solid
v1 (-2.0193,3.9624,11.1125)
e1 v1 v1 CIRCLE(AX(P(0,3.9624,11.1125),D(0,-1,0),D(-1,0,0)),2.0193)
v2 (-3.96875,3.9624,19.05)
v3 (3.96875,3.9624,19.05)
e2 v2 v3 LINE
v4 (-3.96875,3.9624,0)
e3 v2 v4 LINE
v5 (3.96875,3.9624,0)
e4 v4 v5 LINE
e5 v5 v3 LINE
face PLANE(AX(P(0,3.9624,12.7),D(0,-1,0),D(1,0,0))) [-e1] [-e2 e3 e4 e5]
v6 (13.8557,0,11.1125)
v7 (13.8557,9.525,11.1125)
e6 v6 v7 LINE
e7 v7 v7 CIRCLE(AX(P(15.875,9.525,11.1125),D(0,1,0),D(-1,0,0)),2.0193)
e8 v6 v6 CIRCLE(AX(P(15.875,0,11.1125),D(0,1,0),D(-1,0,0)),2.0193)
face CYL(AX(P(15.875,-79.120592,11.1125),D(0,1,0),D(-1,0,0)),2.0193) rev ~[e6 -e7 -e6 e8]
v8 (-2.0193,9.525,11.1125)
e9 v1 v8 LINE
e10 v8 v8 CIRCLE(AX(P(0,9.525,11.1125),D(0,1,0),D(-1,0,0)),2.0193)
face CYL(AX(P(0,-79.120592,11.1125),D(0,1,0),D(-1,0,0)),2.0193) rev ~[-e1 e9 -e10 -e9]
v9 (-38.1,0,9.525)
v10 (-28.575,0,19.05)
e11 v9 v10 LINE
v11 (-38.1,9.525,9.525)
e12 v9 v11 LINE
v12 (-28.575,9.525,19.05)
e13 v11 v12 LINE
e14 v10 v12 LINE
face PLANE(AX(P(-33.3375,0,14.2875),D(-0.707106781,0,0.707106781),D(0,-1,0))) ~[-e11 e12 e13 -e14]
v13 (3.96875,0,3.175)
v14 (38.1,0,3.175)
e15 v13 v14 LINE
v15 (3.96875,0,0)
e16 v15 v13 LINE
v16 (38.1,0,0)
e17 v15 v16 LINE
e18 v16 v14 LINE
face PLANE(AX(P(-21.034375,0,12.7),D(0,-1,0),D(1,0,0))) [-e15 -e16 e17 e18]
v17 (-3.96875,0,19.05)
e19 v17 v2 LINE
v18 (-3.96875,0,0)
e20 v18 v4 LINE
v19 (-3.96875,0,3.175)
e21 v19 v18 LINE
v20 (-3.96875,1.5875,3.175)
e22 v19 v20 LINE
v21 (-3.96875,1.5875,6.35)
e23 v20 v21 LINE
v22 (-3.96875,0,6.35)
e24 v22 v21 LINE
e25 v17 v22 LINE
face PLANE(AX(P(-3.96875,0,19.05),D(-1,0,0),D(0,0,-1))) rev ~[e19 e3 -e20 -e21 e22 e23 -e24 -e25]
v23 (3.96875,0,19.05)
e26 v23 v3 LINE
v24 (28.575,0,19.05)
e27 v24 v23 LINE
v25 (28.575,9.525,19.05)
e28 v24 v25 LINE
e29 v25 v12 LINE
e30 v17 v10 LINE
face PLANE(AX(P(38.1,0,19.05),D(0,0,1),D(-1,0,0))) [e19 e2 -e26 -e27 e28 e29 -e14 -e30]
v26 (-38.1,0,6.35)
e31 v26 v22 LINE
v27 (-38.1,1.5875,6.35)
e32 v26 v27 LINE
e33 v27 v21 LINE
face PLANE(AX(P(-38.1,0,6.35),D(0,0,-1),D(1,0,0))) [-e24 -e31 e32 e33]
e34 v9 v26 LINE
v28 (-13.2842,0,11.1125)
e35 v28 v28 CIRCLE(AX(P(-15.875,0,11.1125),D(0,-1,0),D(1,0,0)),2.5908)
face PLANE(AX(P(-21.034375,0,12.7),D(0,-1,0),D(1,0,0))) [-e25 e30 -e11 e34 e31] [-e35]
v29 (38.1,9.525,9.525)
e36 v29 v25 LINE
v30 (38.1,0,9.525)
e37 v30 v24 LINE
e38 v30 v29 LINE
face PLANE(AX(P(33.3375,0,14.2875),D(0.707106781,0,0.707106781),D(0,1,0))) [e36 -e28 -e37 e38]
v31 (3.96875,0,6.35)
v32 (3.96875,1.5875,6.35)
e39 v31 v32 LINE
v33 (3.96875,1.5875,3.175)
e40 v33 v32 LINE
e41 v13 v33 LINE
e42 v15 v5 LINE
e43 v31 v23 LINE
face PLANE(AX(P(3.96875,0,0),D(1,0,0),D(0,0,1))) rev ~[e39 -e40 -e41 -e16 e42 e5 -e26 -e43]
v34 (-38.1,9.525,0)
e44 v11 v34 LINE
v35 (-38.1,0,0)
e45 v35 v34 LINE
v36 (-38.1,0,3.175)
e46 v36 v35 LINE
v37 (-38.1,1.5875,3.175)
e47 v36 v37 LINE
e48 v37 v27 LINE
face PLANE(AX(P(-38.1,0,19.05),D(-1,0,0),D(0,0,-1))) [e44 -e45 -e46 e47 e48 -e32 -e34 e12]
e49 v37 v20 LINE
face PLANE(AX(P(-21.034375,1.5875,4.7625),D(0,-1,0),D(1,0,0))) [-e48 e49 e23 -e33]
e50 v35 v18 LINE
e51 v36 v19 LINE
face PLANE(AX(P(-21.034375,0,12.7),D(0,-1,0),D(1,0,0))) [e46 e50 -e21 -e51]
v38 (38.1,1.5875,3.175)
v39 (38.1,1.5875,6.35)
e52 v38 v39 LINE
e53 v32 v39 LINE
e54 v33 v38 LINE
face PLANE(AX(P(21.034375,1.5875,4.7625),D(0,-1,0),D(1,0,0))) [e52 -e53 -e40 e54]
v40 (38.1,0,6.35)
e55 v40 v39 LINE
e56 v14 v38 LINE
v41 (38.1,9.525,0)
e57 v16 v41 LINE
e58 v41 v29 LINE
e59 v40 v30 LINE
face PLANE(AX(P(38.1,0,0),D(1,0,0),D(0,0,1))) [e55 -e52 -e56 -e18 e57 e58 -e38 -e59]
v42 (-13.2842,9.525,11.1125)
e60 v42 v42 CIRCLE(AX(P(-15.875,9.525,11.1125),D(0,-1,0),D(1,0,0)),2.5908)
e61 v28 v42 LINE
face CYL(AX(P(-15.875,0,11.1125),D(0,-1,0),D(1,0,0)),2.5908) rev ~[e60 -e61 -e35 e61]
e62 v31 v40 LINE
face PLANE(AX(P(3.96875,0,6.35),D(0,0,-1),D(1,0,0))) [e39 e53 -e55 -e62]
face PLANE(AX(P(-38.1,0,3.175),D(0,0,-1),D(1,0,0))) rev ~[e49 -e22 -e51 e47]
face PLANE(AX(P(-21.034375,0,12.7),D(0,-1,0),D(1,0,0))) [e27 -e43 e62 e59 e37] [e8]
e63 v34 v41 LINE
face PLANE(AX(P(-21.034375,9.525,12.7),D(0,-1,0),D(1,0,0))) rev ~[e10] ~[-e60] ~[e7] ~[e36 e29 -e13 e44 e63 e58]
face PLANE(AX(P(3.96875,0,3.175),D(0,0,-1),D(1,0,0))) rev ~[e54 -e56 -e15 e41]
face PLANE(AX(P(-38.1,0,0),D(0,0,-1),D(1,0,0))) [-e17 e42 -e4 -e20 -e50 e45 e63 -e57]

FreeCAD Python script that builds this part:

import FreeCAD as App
import Part
import Sketcher
from FreeCAD import Vector
Q = App.Units.Quantity


def edges_at(feature, points):
    """Names of the edges that pass closest to the given points."""
    edges = feature.Shape.Edges
    near = lambda p: min(range(len(edges)), key=lambda i: edges[i].distToShape(Part.Vertex(*p))[0])
    return sorted({f"Edge{near(p) + 1}" for p in points})


def add_polygon(sketch, points):
    """Adds a closed chain of lines whose ends are joined by coincident constraints."""
    first, n = sketch.GeometryCount, len(points)
    for a, b in zip(points, points[1:] + points[:1]):
        sketch.addGeometry(Part.LineSegment(App.Vector(*a, 0), App.Vector(*b, 0)), False)
    for i in range(n):
        sketch.addConstraint(Sketcher.Constraint("Coincident", first + i, 2, first + (i + 1) % n, 1))

doc = App.newDocument("Part")
body = doc.addObject("PartDesign::Body", "Body")

sketch1 = body.newObject("Sketcher::SketchObject", "Sketch")
sketch1.AttachmentSupport = (doc.getObject("XZ_Plane"), [""])
sketch1.MapMode = "FlatFace"
add_polygon(sketch1, [(-38.1, 0), (38.1, 0), (38.1, 19.1), (-38.1, 19.1)])
sketch1.addGeometry(Part.Circle(Vector(-15.9, 11.1, 0), Vector(0, 0, 1), 2.6), False)
sketch1.addConstraint(Sketcher.Constraint("Horizontal", 0))
sketch1.addConstraint(Sketcher.Constraint("Vertical", 1))
sketch1.addConstraint(Sketcher.Constraint("Horizontal", 2))
sketch1.addConstraint(Sketcher.Constraint("Vertical", 3))
sketch1.addConstraint(Sketcher.Constraint("Symmetric", 0, 2, 3, 2, -1, 1))
sketch1.addConstraint(Sketcher.Constraint("DistanceX", 0, 1, 0, 2, Q("3 in")))
sketch1.addConstraint(Sketcher.Constraint("Diameter", 4, Q("0.204 in")))
sketch1.addConstraint(Sketcher.Constraint("DistanceY", 1, 1, 1, 2, Q("0.75 in")))
sketch1.addConstraint(Sketcher.Constraint("DistanceX", 4, 3, -1, 1, Q("0.625 in")))
sketch1.addConstraint(Sketcher.Constraint("DistanceY", -1, 1, 4, 3, Q("0.4375 in")))
pad1 = body.newObject("PartDesign::Pad", "Pad")
pad1.Profile = sketch1
pad1.Length = Q("0.375 in")
pad1.Reversed = True

sketch2 = body.newObject("Sketcher::SketchObject", "Sketch001")
sketch2.AttachmentSupport = (doc.getObject("XZ_Plane"), [""])
sketch2.MapMode = "FlatFace"
add_polygon(sketch2, [(-4, 19.1), (-4, 0), (4, 0), (4, 19.1)])
sketch2.addGeometry(Part.Circle(Vector(0, 11.1, 0), Vector(0, 0, 1), 2), False)
sketch2.addConstraint(Sketcher.Constraint("Vertical", 0))
sketch2.addConstraint(Sketcher.Constraint("Horizontal", 1))
sketch2.addConstraint(Sketcher.Constraint("Vertical", 2))
sketch2.addConstraint(Sketcher.Constraint("Horizontal", 3))
sketch2.addConstraint(Sketcher.Constraint("Symmetric", 0, 2, 1, 2, -1, 1))
sketch2.addConstraint(Sketcher.Constraint("PointOnObject", 4, 3, -2))
sketch2.addConstraint(Sketcher.Constraint("Diameter", 4, Q("0.159 in")))
sketch2.addConstraint(Sketcher.Constraint("DistanceY", 0, 2, 0, 1, Q("0.75 in")))
sketch2.addConstraint(Sketcher.Constraint("DistanceX", 1, 1, 1, 2, Q("0.3125 in")))
sketch2.addConstraint(Sketcher.Constraint("DistanceY", -1, 1, 4, 3, Q("0.4375 in")))
pocket1 = body.newObject("PartDesign::Pocket", "Pocket")
pocket1.Profile = sketch2
pocket1.Length = Q("0.156 in")

sketch3 = body.newObject("Sketcher::SketchObject", "Sketch002")
sketch3.AttachmentSupport = (doc.getObject("XZ_Plane"), [""])
sketch3.MapMode = "FlatFace"
add_polygon(sketch3, [(-38.1, 6.3), (-38.1, 3.2), (-4, 3.2), (-4, 6.3)])
add_polygon(sketch3, [(4, 6.3), (4, 3.2), (38.1, 3.2), (38.1, 6.3)])
sketch3.addConstraint(Sketcher.Constraint("Vertical", 0))
sketch3.addConstraint(Sketcher.Constraint("Horizontal", 1))
sketch3.addConstraint(Sketcher.Constraint("Vertical", 2))
sketch3.addConstraint(Sketcher.Constraint("Horizontal", 3))
sketch3.addConstraint(Sketcher.Constraint("Vertical", 4))
sketch3.addConstraint(Sketcher.Constraint("Horizontal", 5))
sketch3.addConstraint(Sketcher.Constraint("Vertical", 6))
sketch3.addConstraint(Sketcher.Constraint("Horizontal", 7))
sketch3.addConstraint(Sketcher.Constraint("Symmetric", 1, 2, 4, 2, -2))
sketch3.addConstraint(Sketcher.Constraint("Symmetric", 3, 2, 6, 2, -2))
sketch3.addConstraint(Sketcher.Constraint("DistanceX", 0, 2, 5, 2, Q("3 in")))
sketch3.addConstraint(Sketcher.Constraint("DistanceX", 1, 1, 1, 2, Q("1.34375 in")))
sketch3.addConstraint(Sketcher.Constraint("DistanceY", 0, 2, 0, 1, Q("0.125 in")))
sketch3.addConstraint(Sketcher.Constraint("DistanceY", -1, 1, 2, 2, Q("0.25 in")))
pocket2 = body.newObject("PartDesign::Pocket", "Pocket001")
pocket2.Profile = sketch3
pocket2.Length = Q("0.0625 in")
doc.recompute()

chamfer = body.newObject("PartDesign::Chamfer", "Chamfer")
chamfer.Base = (pocket2, edges_at(pocket2, [(38.1, 4.763, 19.05), (-38.1, 4.763, 19.05)]))
chamfer.Size = Q("0.375 in")

sketch4 = body.newObject("Sketcher::SketchObject", "Sketch003")
sketch4.AttachmentSupport = (doc.getObject("XZ_Plane"), [""])
sketch4.MapMode = "FlatFace"
sketch4.addGeometry(Part.Circle(Vector(0, 11.1, 0), Vector(0, 0, 1), 2), False)
sketch4.addGeometry(Part.Circle(Vector(15.9, 11.1, 0), Vector(0, 0, 1), 2), False)
sketch4.addConstraint(Sketcher.Constraint("Equal", 0, 1))
sketch4.addConstraint(Sketcher.Constraint("PointOnObject", 0, 3, -2))
sketch4.addConstraint(Sketcher.Constraint("Horizontal", 0, 3, 1, 3))
sketch4.addConstraint(Sketcher.Constraint("Diameter", 0, Q("0.159 in")))
sketch4.addConstraint(Sketcher.Constraint("DistanceY", -1, 1, 0, 3, Q("0.4375 in")))
sketch4.addConstraint(Sketcher.Constraint("DistanceX", -1, 1, 1, 3, Q("0.625 in")))
doc.recompute()
hole = body.newObject("PartDesign::Hole", "Hole")
hole.Profile = sketch4
hole.ThreadType = "None"
hole.Diameter = Q("0.159 in")
hole.DepthType = "ThroughAll"

doc.recompute()
